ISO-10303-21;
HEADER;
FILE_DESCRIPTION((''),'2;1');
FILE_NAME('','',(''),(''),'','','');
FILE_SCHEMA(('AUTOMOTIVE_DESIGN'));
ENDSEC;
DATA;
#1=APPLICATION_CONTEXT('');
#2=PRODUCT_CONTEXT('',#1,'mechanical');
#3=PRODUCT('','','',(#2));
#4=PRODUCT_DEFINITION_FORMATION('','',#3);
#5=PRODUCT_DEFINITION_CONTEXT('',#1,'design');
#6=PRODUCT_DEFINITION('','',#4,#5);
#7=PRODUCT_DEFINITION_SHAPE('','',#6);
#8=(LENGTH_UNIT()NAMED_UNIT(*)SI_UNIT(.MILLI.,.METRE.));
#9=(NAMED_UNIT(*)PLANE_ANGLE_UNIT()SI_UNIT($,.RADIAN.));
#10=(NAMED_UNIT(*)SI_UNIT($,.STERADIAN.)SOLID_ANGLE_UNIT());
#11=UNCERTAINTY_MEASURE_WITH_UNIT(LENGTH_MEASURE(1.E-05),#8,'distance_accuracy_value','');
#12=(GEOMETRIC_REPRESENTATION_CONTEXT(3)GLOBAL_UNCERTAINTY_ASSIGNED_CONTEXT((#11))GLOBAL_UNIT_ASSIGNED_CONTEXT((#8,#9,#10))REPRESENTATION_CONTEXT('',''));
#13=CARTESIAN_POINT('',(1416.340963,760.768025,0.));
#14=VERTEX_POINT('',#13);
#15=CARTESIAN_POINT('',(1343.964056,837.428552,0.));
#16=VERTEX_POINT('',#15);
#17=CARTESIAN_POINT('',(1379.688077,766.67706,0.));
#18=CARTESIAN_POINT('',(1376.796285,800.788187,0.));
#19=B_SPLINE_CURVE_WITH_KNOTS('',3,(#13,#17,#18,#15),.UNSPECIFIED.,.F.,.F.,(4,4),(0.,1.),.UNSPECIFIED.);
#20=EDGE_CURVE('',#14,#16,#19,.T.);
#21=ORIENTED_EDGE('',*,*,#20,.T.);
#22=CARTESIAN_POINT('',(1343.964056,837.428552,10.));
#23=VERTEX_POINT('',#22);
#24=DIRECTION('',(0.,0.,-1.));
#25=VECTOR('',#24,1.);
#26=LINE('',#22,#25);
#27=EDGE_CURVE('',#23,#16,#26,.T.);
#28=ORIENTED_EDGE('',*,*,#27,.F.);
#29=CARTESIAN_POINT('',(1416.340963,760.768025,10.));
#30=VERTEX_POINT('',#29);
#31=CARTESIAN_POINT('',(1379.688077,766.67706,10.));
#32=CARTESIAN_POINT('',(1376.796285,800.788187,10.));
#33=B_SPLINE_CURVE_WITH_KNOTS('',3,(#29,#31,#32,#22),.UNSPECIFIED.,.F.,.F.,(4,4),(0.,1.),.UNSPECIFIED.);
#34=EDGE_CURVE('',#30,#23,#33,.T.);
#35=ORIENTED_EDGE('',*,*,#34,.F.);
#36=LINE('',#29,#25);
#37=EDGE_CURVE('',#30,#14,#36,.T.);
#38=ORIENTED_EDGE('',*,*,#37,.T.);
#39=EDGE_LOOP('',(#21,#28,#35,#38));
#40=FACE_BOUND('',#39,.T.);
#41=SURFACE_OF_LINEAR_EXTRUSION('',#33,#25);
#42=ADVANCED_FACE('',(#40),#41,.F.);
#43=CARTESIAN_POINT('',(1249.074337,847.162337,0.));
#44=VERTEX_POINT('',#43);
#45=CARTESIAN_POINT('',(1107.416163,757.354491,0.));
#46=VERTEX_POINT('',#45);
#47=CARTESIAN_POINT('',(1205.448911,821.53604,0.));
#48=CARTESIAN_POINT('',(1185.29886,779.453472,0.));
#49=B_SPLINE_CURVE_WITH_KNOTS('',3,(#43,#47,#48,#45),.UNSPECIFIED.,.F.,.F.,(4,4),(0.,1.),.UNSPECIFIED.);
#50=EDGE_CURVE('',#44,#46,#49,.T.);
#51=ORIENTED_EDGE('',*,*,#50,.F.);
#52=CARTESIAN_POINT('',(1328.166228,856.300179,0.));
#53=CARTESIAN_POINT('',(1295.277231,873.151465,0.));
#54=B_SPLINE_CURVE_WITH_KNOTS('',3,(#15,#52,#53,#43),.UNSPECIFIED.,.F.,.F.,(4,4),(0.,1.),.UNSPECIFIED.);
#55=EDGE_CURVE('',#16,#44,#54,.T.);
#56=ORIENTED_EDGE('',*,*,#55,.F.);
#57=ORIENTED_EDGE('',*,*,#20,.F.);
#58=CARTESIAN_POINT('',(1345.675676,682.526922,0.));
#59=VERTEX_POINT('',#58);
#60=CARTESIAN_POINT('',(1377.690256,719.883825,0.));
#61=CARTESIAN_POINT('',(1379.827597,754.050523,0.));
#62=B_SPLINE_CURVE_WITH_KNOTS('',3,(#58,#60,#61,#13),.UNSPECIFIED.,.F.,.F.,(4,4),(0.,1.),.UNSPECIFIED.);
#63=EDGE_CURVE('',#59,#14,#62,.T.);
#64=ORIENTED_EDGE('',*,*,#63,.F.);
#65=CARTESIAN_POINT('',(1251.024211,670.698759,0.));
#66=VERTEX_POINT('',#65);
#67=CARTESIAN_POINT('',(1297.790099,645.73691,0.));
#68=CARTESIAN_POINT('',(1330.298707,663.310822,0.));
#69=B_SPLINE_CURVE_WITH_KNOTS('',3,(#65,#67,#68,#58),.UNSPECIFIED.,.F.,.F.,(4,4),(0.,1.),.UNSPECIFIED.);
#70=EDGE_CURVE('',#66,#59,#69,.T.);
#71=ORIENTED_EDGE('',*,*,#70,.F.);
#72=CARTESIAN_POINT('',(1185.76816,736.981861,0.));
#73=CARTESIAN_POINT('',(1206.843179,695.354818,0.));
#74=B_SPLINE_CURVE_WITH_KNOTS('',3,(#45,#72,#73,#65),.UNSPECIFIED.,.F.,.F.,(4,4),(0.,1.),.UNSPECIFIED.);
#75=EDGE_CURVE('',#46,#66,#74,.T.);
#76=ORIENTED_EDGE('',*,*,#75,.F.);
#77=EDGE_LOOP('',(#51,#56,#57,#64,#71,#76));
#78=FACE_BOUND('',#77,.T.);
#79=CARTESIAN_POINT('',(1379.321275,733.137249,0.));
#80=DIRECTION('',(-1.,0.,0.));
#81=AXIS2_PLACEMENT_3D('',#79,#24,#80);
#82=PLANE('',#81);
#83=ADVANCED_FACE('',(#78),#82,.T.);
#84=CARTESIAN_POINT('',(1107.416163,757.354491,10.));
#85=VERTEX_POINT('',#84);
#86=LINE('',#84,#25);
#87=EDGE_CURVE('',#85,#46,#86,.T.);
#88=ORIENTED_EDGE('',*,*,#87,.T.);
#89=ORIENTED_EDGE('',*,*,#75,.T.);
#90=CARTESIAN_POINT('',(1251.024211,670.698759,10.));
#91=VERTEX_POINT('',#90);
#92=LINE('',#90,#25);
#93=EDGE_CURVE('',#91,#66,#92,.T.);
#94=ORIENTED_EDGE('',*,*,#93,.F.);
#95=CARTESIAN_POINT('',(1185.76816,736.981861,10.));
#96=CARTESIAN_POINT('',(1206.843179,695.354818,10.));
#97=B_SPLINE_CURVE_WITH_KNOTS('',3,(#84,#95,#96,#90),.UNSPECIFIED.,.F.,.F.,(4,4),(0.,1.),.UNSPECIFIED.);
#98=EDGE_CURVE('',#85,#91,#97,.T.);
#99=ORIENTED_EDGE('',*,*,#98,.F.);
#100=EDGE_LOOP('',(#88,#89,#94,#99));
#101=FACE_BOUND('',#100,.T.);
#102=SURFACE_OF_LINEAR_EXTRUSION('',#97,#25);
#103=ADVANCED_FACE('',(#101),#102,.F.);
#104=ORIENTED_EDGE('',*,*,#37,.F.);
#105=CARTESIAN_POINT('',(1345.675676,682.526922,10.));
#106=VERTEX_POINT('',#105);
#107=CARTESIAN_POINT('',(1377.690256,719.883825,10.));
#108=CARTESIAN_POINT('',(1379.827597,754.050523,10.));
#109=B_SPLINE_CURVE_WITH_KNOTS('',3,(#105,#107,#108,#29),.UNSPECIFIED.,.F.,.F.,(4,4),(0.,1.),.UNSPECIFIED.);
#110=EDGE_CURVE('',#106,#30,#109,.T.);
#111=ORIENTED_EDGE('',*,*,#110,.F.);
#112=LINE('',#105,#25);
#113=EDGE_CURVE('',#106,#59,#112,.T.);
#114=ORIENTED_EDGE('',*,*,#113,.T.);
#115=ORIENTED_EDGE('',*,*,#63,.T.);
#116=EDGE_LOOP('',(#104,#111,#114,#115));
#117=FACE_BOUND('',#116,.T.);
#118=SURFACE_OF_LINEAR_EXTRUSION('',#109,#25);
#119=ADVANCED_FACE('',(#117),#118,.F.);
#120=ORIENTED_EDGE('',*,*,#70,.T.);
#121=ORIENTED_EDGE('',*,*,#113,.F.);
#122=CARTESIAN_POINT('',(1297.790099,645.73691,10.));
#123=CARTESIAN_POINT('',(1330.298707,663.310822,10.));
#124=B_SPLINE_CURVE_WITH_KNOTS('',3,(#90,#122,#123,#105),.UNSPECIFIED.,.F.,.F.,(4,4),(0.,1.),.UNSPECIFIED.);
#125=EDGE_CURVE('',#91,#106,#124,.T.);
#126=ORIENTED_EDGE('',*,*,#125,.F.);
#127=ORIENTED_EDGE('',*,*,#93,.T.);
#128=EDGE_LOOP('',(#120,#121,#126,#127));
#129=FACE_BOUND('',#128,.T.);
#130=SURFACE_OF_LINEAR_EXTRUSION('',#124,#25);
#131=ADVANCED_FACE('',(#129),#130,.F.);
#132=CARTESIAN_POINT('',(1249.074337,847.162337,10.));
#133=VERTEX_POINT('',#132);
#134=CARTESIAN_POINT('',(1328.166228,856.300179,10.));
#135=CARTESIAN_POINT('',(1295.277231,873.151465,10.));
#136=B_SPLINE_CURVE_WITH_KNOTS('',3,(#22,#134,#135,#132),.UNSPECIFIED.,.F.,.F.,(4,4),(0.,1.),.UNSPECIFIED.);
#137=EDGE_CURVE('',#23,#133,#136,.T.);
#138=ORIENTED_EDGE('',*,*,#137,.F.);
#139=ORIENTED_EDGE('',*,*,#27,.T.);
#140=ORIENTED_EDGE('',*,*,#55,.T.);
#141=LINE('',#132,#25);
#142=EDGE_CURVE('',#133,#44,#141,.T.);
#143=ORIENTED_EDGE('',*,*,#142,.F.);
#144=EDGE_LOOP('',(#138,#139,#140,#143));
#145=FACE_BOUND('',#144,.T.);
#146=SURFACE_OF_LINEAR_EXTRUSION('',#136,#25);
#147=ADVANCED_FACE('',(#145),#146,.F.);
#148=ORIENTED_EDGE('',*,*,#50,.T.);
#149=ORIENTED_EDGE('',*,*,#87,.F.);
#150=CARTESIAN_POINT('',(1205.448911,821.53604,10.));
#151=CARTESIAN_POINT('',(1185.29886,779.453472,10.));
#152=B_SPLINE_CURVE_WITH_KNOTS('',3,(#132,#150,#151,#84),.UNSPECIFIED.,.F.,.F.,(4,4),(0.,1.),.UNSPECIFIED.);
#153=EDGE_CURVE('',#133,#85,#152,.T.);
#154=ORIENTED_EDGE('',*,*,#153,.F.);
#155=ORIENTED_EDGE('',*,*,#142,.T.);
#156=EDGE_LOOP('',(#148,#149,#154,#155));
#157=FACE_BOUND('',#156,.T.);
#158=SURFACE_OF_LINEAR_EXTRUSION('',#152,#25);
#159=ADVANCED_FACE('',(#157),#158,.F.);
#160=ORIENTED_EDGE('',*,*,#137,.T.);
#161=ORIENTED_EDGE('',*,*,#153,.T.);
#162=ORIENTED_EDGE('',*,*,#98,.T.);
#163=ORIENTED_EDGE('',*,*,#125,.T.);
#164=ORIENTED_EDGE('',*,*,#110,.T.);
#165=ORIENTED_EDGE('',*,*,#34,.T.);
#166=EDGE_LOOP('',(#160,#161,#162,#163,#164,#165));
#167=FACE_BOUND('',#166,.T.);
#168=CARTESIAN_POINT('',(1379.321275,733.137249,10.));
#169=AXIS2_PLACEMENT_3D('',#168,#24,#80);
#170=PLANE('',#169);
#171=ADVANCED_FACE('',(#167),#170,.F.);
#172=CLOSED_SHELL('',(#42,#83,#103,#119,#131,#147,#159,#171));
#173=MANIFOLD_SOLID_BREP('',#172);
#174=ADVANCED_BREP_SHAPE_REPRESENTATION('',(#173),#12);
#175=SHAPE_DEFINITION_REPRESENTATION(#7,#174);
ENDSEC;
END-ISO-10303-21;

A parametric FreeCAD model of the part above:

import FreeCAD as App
import Part
import Sketcher

doc = App.newDocument("Part")
body = doc.addObject("PartDesign::Body", "Body")

# Sketch on XY plane
sketch1 = body.newObject("Sketcher::SketchObject", "Sketch")
sketch1.AttachmentSupport = (doc.getObject("XY_Plane"), [""])
sketch1.MapMode = "FlatFace"
sketch1.addGeometry([
    Part.BSplineCurve([App.Vector(1416.340963, 760.768025, 0), App.Vector(1379.688077, 766.67706, 0), App.Vector(1376.796285, 800.788187, 0), App.Vector(1343.964056, 837.428552, 0)], [4, 4], [0, 1], False, 3, [1, 1, 1, 1], False),  # 0
    Part.BSplineCurve([App.Vector(1343.964056, 837.428552, 0), App.Vector(1328.166228, 856.300179, 0), App.Vector(1295.277231, 873.151465, 0), App.Vector(1249.074337, 847.162337, 0)], [4, 4], [0, 1], False, 3, [1, 1, 1, 1], False),  # 1
    Part.BSplineCurve([App.Vector(1249.074337, 847.162337, 0), App.Vector(1205.448911, 821.53604, 0), App.Vector(1185.29886, 779.453472, 0), App.Vector(1107.416163, 757.354491, 0)], [4, 4], [0, 1], False, 3, [1, 1, 1, 1], False),  # 2
    Part.BSplineCurve([App.Vector(1251.024211, 670.698759, 0), App.Vector(1206.843179, 695.354818, 0), App.Vector(1185.76816, 736.981861, 0), App.Vector(1107.416163, 757.354491, 0)], [4, 4], [0, 1], False, 3, [1, 1, 1, 1], False),  # 3
    Part.BSplineCurve([App.Vector(1345.675676, 682.526922, 0), App.Vector(1330.298707, 663.310822, 0), App.Vector(1297.790099, 645.73691, 0), App.Vector(1251.024211, 670.698759, 0)], [4, 4], [0, 1], False, 3, [1, 1, 1, 1], False),  # 4
    Part.BSplineCurve([App.Vector(1416.340963, 760.768025, 0), App.Vector(1379.827597, 754.050523, 0), App.Vector(1377.690256, 719.883825, 0), App.Vector(1345.675676, 682.526922, 0)], [4, 4], [0, 1], False, 3, [1, 1, 1, 1], False),  # 5
], False)
sketch1.addConstraint([
    Sketcher.Constraint("Block", 0),
    Sketcher.Constraint("Block", 1),
    Sketcher.Constraint("Block", 2),
    Sketcher.Constraint("Block", 3),
    Sketcher.Constraint("Block", 4),
    Sketcher.Constraint("Block", 5),
])
pad1 = body.newObject("PartDesign::Pad", "Pad")
pad1.Profile = sketch1
pad1.Length = 10

doc.recompute()
